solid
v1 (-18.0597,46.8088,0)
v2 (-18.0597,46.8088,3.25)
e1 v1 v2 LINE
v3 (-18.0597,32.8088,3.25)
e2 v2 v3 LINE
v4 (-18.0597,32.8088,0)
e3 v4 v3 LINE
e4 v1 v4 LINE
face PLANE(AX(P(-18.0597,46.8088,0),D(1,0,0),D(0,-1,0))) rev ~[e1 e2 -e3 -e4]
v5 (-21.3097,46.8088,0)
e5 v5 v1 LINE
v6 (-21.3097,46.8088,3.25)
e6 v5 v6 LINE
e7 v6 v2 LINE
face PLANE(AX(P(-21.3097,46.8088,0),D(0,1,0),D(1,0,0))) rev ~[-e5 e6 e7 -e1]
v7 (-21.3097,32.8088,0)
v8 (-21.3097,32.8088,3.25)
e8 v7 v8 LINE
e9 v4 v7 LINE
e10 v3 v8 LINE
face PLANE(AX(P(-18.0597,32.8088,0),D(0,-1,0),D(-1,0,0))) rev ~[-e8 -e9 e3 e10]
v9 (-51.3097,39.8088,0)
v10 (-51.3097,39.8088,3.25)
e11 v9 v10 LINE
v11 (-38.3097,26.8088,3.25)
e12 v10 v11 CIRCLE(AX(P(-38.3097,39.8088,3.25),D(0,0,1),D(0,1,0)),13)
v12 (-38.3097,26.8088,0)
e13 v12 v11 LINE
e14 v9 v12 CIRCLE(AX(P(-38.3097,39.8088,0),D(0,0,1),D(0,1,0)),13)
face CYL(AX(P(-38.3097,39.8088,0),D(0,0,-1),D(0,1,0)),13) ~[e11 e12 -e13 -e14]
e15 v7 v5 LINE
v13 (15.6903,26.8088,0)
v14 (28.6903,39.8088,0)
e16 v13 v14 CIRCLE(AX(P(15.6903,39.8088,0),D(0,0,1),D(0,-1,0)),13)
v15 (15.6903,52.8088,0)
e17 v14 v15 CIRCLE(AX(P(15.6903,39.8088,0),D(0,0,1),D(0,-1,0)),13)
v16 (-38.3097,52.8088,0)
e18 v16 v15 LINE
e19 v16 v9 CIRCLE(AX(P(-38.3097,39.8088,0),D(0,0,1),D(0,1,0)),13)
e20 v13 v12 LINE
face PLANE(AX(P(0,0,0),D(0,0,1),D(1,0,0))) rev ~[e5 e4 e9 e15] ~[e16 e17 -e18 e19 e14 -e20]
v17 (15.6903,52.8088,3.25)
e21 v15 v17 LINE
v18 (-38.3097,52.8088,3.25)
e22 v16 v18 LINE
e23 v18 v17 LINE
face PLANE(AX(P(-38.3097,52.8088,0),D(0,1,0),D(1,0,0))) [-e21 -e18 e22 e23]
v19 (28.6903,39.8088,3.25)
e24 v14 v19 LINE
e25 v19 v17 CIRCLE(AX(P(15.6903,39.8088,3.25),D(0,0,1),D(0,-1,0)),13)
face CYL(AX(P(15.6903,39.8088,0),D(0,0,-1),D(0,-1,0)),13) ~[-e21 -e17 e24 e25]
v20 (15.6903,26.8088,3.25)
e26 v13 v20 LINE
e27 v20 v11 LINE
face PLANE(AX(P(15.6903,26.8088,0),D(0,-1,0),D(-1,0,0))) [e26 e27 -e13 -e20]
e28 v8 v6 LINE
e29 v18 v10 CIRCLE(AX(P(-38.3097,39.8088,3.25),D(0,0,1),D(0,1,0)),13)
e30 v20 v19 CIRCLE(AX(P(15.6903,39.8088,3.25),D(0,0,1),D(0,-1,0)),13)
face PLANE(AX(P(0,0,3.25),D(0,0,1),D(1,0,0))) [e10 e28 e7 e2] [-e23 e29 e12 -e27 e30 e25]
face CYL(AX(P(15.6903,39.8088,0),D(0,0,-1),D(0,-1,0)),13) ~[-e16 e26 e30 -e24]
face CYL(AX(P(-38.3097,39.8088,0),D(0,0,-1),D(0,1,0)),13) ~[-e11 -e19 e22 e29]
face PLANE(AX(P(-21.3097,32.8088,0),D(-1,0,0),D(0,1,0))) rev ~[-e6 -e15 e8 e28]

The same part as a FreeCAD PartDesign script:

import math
import FreeCAD as App
import Part
import Sketcher

V = App.Vector
Q = App.Units.Quantity

doc = App.newDocument("Part")
body = doc.addObject("PartDesign::Body", "Body")

sketch1 = body.newObject("Sketcher::SketchObject", "Sketch")
sketch1.AttachmentSupport = (doc.getObject("XY_Plane"), [""])
sketch1.MapMode = "FlatFace"
sketch1.addGeometry([
    Part.LineSegment(V(15.6903, 52.8088, 0), V(-38.3097, 52.8088, 0)),
    Part.ArcOfCircle(Part.Circle(V(-38.3097, 39.8088, 0), V(0, 0, 1), 13), math.radians(90), math.radians(270)),
    Part.LineSegment(V(-38.3097, 26.8088, 0), V(15.6903, 26.8088, 0)),
    Part.ArcOfCircle(Part.Circle(V(15.6903, 39.8088, 0), V(0, 0, 1), 13), math.radians(-90), math.radians(90)),
    Part.LineSegment(V(-21.3097, 32.8088, 0), V(-21.3097, 46.8088, 0)),
    Part.LineSegment(V(-21.3097, 46.8088, 0), V(-18.0597, 46.8088, 0)),
    Part.LineSegment(V(-18.0597, 46.8088, 0), V(-18.0597, 32.8088, 0)),
    Part.LineSegment(V(-18.0597, 32.8088, 0), V(-21.3097, 32.8088, 0)),
], False)
sketch1.addConstraint([
    Sketcher.Constraint("Tangent", 0, 2, 1, 1),
    Sketcher.Constraint("Tangent", 1, 2, 2, 1),
    Sketcher.Constraint("Tangent", 2, 2, 3, 1),
    Sketcher.Constraint("Tangent", 3, 2, 0, 1),
    Sketcher.Constraint("Coincident", 4, 2, 5, 1),
    Sketcher.Constraint("Coincident", 5, 2, 6, 1),
    Sketcher.Constraint("Coincident", 6, 2, 7, 1),
    Sketcher.Constraint("Coincident", 7, 2, 4, 1),
    Sketcher.Constraint("Horizontal", 0),
    Sketcher.Constraint("Horizontal", 2),
    Sketcher.Constraint("Vertical", 4),
    Sketcher.Constraint("Horizontal", 5),
    Sketcher.Constraint("Vertical", 6),
    Sketcher.Constraint("Horizontal", 7),
    Sketcher.Constraint("Radius", 1, Q("13 mm")),
    Sketcher.Constraint("DistanceY", 4, 1, 4, 2, Q("14 mm")),
    Sketcher.Constraint("DistanceX", 5, 1, 5, 2, Q("3.25 mm")),
    Sketcher.Constraint("DistanceX", 0, 2, 0, 1, Q("54 mm")),
    Sketcher.Constraint("DistanceX", 0, 2, 4, 2, Q("17 mm")),
    Sketcher.Constraint("DistanceY", 4, 2, 0, 2, Q("6 mm")),
    Sketcher.Constraint("DistanceX", 1, 3, -1, 1, Q("38.3097 mm")),
    Sketcher.Constraint("DistanceY", -1, 1, 1, 3, Q("39.8088 mm")),
])
pad1 = body.newObject("PartDesign::Pad", "Pad")
pad1.Profile = sketch1
pad1.Length = 3.25

doc.recompute()
